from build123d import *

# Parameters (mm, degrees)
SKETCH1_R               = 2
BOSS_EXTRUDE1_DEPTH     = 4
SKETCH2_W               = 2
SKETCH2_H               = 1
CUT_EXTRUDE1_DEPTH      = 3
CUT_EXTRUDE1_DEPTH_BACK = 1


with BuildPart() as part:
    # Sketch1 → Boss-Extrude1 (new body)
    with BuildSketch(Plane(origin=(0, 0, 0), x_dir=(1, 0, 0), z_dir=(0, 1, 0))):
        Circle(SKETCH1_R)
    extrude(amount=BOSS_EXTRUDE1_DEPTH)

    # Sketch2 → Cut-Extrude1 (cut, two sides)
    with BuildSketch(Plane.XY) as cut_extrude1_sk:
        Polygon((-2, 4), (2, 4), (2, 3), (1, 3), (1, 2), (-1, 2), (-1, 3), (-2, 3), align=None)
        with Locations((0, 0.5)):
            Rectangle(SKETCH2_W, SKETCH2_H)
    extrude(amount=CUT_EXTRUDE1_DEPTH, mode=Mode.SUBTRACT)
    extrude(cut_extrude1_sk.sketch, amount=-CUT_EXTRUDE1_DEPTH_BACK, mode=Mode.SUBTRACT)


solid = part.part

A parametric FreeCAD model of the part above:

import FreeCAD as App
import Part
import Sketcher

V = App.Vector
Q = App.Units.Quantity

doc = App.newDocument("Part")
body = doc.addObject("PartDesign::Body", "Body")

sketch1 = body.newObject("Sketcher::SketchObject", "Sketch")
sketch1.AttachmentSupport = (doc.getObject("XZ_Plane"), [""])
sketch1.MapMode = "FlatFace"
sketch1.addGeometry(Part.Circle(V(0, 0, 0), V(0, 0, 1), 2), False)
sketch1.addConstraint(Sketcher.Constraint("Coincident", 0, 3, -1, 1))
sketch1.addConstraint(Sketcher.Constraint("Diameter", 0, Q("4 mm")))
pad1 = body.newObject("PartDesign::Pad", "Pad")
pad1.Profile = sketch1
pad1.Length = 4
pad1.Reversed = True

sketch2 = body.newObject("Sketcher::SketchObject", "Sketch001")
sketch2.AttachmentSupport = (doc.getObject("XY_Plane"), [""])
sketch2.MapMode = "FlatFace"
sketch2.addGeometry(Part.LineSegment(V(2, 4, 0), V(-2, 4, 0)), False)
sketch2.addGeometry(Part.LineSegment(V(-2, 4, 0), V(-2, 3, 0)), False)
sketch2.addGeometry(Part.LineSegment(V(-2, 3, 0), V(-1, 3, 0)), False)
sketch2.addGeometry(Part.LineSegment(V(-1, 3, 0), V(-1, 2, 0)), False)
sketch2.addGeometry(Part.LineSegment(V(-1, 2, 0), V(1, 2, 0)), False)
sketch2.addGeometry(Part.LineSegment(V(1, 2, 0), V(1, 3, 0)), False)
sketch2.addGeometry(Part.LineSegment(V(1, 3, 0), V(2, 3, 0)), False)
sketch2.addGeometry(Part.LineSegment(V(2, 3, 0), V(2, 4, 0)), False)
sketch2.addGeometry(Part.LineSegment(V(-1, 1, 0), V(-1, 0, 0)), False)
sketch2.addGeometry(Part.LineSegment(V(-1, 0, 0), V(1, 0, 0)), False)
sketch2.addGeometry(Part.LineSegment(V(1, 0, 0), V(1, 1, 0)), False)
sketch2.addGeometry(Part.LineSegment(V(1, 1, 0), V(-1, 1, 0)), False)
sketch2.addConstraint(Sketcher.Constraint("Coincident", 0, 2, 1, 1))
sketch2.addConstraint(Sketcher.Constraint("Coincident", 1, 2, 2, 1))
sketch2.addConstraint(Sketcher.Constraint("Coincident", 2, 2, 3, 1))
sketch2.addConstraint(Sketcher.Constraint("Coincident", 3, 2, 4, 1))
sketch2.addConstraint(Sketcher.Constraint("Coincident", 4, 2, 5, 1))
sketch2.addConstraint(Sketcher.Constraint("Coincident", 5, 2, 6, 1))
sketch2.addConstraint(Sketcher.Constraint("Coincident", 6, 2, 7, 1))
sketch2.addConstraint(Sketcher.Constraint("Coincident", 7, 2, 0, 1))
sketch2.addConstraint(Sketcher.Constraint("Coincident", 8, 2, 9, 1))
sketch2.addConstraint(Sketcher.Constraint("Coincident", 9, 2, 10, 1))
sketch2.addConstraint(Sketcher.Constraint("Coincident", 10, 2, 11, 1))
sketch2.addConstraint(Sketcher.Constraint("Coincident", 11, 2, 8, 1))
sketch2.addConstraint(Sketcher.Constraint("Horizontal", 0))
sketch2.addConstraint(Sketcher.Constraint("Vertical", 1))
sketch2.addConstraint(Sketcher.Constraint("Horizontal", 2))
sketch2.addConstraint(Sketcher.Constraint("Vertical", 3))
sketch2.addConstraint(Sketcher.Constraint("Horizontal", 4))
sketch2.addConstraint(Sketcher.Constraint("Vertical", 5))
sketch2.addConstraint(Sketcher.Constraint("Horizontal", 6))
sketch2.addConstraint(Sketcher.Constraint("Vertical", 7))
sketch2.addConstraint(Sketcher.Constraint("Vertical", 8))
sketch2.addConstraint(Sketcher.Constraint("Horizontal", 9))
sketch2.addConstraint(Sketcher.Constraint("Vertical", 10))
sketch2.addConstraint(Sketcher.Constraint("Horizontal", 11))
sketch2.addConstraint(Sketcher.Constraint("Symmetric", 8, 2, 9, 2, -1, 1))
sketch2.addConstraint(Sketcher.Constraint("Symmetric", 2, 2, 5, 2, -2))
sketch2.addConstraint(Sketcher.Constraint("Vertical", 3, 2, 8, 2))
sketch2.addConstraint(Sketcher.Constraint("Equal", 2, 6))
sketch2.addConstraint(Sketcher.Constraint("Equal", 6, 1))
sketch2.addConstraint(Sketcher.Constraint("Equal", 1, 3))
sketch2.addConstraint(Sketcher.Constraint("Equal", 7, 8))
sketch2.addConstraint(Sketcher.Constraint("DistanceX", 0, 2, 0, 1, Q("4 mm")))
sketch2.addConstraint(Sketcher.Constraint("DistanceX", 2, 1, 2, 2, Q("1 mm")))
sketch2.addConstraint(Sketcher.Constraint("DistanceY", -1, 1, 0, 2, Q("4 mm")))
pocket1 = body.newObject("PartDesign::Pocket", "Pocket")
pocket1.Profile = sketch2
pocket1.Type = "TwoLengths"
pocket1.Length = 3
pocket1.Length2 = 1
pocket1.Reversed = True

doc.recompute()
